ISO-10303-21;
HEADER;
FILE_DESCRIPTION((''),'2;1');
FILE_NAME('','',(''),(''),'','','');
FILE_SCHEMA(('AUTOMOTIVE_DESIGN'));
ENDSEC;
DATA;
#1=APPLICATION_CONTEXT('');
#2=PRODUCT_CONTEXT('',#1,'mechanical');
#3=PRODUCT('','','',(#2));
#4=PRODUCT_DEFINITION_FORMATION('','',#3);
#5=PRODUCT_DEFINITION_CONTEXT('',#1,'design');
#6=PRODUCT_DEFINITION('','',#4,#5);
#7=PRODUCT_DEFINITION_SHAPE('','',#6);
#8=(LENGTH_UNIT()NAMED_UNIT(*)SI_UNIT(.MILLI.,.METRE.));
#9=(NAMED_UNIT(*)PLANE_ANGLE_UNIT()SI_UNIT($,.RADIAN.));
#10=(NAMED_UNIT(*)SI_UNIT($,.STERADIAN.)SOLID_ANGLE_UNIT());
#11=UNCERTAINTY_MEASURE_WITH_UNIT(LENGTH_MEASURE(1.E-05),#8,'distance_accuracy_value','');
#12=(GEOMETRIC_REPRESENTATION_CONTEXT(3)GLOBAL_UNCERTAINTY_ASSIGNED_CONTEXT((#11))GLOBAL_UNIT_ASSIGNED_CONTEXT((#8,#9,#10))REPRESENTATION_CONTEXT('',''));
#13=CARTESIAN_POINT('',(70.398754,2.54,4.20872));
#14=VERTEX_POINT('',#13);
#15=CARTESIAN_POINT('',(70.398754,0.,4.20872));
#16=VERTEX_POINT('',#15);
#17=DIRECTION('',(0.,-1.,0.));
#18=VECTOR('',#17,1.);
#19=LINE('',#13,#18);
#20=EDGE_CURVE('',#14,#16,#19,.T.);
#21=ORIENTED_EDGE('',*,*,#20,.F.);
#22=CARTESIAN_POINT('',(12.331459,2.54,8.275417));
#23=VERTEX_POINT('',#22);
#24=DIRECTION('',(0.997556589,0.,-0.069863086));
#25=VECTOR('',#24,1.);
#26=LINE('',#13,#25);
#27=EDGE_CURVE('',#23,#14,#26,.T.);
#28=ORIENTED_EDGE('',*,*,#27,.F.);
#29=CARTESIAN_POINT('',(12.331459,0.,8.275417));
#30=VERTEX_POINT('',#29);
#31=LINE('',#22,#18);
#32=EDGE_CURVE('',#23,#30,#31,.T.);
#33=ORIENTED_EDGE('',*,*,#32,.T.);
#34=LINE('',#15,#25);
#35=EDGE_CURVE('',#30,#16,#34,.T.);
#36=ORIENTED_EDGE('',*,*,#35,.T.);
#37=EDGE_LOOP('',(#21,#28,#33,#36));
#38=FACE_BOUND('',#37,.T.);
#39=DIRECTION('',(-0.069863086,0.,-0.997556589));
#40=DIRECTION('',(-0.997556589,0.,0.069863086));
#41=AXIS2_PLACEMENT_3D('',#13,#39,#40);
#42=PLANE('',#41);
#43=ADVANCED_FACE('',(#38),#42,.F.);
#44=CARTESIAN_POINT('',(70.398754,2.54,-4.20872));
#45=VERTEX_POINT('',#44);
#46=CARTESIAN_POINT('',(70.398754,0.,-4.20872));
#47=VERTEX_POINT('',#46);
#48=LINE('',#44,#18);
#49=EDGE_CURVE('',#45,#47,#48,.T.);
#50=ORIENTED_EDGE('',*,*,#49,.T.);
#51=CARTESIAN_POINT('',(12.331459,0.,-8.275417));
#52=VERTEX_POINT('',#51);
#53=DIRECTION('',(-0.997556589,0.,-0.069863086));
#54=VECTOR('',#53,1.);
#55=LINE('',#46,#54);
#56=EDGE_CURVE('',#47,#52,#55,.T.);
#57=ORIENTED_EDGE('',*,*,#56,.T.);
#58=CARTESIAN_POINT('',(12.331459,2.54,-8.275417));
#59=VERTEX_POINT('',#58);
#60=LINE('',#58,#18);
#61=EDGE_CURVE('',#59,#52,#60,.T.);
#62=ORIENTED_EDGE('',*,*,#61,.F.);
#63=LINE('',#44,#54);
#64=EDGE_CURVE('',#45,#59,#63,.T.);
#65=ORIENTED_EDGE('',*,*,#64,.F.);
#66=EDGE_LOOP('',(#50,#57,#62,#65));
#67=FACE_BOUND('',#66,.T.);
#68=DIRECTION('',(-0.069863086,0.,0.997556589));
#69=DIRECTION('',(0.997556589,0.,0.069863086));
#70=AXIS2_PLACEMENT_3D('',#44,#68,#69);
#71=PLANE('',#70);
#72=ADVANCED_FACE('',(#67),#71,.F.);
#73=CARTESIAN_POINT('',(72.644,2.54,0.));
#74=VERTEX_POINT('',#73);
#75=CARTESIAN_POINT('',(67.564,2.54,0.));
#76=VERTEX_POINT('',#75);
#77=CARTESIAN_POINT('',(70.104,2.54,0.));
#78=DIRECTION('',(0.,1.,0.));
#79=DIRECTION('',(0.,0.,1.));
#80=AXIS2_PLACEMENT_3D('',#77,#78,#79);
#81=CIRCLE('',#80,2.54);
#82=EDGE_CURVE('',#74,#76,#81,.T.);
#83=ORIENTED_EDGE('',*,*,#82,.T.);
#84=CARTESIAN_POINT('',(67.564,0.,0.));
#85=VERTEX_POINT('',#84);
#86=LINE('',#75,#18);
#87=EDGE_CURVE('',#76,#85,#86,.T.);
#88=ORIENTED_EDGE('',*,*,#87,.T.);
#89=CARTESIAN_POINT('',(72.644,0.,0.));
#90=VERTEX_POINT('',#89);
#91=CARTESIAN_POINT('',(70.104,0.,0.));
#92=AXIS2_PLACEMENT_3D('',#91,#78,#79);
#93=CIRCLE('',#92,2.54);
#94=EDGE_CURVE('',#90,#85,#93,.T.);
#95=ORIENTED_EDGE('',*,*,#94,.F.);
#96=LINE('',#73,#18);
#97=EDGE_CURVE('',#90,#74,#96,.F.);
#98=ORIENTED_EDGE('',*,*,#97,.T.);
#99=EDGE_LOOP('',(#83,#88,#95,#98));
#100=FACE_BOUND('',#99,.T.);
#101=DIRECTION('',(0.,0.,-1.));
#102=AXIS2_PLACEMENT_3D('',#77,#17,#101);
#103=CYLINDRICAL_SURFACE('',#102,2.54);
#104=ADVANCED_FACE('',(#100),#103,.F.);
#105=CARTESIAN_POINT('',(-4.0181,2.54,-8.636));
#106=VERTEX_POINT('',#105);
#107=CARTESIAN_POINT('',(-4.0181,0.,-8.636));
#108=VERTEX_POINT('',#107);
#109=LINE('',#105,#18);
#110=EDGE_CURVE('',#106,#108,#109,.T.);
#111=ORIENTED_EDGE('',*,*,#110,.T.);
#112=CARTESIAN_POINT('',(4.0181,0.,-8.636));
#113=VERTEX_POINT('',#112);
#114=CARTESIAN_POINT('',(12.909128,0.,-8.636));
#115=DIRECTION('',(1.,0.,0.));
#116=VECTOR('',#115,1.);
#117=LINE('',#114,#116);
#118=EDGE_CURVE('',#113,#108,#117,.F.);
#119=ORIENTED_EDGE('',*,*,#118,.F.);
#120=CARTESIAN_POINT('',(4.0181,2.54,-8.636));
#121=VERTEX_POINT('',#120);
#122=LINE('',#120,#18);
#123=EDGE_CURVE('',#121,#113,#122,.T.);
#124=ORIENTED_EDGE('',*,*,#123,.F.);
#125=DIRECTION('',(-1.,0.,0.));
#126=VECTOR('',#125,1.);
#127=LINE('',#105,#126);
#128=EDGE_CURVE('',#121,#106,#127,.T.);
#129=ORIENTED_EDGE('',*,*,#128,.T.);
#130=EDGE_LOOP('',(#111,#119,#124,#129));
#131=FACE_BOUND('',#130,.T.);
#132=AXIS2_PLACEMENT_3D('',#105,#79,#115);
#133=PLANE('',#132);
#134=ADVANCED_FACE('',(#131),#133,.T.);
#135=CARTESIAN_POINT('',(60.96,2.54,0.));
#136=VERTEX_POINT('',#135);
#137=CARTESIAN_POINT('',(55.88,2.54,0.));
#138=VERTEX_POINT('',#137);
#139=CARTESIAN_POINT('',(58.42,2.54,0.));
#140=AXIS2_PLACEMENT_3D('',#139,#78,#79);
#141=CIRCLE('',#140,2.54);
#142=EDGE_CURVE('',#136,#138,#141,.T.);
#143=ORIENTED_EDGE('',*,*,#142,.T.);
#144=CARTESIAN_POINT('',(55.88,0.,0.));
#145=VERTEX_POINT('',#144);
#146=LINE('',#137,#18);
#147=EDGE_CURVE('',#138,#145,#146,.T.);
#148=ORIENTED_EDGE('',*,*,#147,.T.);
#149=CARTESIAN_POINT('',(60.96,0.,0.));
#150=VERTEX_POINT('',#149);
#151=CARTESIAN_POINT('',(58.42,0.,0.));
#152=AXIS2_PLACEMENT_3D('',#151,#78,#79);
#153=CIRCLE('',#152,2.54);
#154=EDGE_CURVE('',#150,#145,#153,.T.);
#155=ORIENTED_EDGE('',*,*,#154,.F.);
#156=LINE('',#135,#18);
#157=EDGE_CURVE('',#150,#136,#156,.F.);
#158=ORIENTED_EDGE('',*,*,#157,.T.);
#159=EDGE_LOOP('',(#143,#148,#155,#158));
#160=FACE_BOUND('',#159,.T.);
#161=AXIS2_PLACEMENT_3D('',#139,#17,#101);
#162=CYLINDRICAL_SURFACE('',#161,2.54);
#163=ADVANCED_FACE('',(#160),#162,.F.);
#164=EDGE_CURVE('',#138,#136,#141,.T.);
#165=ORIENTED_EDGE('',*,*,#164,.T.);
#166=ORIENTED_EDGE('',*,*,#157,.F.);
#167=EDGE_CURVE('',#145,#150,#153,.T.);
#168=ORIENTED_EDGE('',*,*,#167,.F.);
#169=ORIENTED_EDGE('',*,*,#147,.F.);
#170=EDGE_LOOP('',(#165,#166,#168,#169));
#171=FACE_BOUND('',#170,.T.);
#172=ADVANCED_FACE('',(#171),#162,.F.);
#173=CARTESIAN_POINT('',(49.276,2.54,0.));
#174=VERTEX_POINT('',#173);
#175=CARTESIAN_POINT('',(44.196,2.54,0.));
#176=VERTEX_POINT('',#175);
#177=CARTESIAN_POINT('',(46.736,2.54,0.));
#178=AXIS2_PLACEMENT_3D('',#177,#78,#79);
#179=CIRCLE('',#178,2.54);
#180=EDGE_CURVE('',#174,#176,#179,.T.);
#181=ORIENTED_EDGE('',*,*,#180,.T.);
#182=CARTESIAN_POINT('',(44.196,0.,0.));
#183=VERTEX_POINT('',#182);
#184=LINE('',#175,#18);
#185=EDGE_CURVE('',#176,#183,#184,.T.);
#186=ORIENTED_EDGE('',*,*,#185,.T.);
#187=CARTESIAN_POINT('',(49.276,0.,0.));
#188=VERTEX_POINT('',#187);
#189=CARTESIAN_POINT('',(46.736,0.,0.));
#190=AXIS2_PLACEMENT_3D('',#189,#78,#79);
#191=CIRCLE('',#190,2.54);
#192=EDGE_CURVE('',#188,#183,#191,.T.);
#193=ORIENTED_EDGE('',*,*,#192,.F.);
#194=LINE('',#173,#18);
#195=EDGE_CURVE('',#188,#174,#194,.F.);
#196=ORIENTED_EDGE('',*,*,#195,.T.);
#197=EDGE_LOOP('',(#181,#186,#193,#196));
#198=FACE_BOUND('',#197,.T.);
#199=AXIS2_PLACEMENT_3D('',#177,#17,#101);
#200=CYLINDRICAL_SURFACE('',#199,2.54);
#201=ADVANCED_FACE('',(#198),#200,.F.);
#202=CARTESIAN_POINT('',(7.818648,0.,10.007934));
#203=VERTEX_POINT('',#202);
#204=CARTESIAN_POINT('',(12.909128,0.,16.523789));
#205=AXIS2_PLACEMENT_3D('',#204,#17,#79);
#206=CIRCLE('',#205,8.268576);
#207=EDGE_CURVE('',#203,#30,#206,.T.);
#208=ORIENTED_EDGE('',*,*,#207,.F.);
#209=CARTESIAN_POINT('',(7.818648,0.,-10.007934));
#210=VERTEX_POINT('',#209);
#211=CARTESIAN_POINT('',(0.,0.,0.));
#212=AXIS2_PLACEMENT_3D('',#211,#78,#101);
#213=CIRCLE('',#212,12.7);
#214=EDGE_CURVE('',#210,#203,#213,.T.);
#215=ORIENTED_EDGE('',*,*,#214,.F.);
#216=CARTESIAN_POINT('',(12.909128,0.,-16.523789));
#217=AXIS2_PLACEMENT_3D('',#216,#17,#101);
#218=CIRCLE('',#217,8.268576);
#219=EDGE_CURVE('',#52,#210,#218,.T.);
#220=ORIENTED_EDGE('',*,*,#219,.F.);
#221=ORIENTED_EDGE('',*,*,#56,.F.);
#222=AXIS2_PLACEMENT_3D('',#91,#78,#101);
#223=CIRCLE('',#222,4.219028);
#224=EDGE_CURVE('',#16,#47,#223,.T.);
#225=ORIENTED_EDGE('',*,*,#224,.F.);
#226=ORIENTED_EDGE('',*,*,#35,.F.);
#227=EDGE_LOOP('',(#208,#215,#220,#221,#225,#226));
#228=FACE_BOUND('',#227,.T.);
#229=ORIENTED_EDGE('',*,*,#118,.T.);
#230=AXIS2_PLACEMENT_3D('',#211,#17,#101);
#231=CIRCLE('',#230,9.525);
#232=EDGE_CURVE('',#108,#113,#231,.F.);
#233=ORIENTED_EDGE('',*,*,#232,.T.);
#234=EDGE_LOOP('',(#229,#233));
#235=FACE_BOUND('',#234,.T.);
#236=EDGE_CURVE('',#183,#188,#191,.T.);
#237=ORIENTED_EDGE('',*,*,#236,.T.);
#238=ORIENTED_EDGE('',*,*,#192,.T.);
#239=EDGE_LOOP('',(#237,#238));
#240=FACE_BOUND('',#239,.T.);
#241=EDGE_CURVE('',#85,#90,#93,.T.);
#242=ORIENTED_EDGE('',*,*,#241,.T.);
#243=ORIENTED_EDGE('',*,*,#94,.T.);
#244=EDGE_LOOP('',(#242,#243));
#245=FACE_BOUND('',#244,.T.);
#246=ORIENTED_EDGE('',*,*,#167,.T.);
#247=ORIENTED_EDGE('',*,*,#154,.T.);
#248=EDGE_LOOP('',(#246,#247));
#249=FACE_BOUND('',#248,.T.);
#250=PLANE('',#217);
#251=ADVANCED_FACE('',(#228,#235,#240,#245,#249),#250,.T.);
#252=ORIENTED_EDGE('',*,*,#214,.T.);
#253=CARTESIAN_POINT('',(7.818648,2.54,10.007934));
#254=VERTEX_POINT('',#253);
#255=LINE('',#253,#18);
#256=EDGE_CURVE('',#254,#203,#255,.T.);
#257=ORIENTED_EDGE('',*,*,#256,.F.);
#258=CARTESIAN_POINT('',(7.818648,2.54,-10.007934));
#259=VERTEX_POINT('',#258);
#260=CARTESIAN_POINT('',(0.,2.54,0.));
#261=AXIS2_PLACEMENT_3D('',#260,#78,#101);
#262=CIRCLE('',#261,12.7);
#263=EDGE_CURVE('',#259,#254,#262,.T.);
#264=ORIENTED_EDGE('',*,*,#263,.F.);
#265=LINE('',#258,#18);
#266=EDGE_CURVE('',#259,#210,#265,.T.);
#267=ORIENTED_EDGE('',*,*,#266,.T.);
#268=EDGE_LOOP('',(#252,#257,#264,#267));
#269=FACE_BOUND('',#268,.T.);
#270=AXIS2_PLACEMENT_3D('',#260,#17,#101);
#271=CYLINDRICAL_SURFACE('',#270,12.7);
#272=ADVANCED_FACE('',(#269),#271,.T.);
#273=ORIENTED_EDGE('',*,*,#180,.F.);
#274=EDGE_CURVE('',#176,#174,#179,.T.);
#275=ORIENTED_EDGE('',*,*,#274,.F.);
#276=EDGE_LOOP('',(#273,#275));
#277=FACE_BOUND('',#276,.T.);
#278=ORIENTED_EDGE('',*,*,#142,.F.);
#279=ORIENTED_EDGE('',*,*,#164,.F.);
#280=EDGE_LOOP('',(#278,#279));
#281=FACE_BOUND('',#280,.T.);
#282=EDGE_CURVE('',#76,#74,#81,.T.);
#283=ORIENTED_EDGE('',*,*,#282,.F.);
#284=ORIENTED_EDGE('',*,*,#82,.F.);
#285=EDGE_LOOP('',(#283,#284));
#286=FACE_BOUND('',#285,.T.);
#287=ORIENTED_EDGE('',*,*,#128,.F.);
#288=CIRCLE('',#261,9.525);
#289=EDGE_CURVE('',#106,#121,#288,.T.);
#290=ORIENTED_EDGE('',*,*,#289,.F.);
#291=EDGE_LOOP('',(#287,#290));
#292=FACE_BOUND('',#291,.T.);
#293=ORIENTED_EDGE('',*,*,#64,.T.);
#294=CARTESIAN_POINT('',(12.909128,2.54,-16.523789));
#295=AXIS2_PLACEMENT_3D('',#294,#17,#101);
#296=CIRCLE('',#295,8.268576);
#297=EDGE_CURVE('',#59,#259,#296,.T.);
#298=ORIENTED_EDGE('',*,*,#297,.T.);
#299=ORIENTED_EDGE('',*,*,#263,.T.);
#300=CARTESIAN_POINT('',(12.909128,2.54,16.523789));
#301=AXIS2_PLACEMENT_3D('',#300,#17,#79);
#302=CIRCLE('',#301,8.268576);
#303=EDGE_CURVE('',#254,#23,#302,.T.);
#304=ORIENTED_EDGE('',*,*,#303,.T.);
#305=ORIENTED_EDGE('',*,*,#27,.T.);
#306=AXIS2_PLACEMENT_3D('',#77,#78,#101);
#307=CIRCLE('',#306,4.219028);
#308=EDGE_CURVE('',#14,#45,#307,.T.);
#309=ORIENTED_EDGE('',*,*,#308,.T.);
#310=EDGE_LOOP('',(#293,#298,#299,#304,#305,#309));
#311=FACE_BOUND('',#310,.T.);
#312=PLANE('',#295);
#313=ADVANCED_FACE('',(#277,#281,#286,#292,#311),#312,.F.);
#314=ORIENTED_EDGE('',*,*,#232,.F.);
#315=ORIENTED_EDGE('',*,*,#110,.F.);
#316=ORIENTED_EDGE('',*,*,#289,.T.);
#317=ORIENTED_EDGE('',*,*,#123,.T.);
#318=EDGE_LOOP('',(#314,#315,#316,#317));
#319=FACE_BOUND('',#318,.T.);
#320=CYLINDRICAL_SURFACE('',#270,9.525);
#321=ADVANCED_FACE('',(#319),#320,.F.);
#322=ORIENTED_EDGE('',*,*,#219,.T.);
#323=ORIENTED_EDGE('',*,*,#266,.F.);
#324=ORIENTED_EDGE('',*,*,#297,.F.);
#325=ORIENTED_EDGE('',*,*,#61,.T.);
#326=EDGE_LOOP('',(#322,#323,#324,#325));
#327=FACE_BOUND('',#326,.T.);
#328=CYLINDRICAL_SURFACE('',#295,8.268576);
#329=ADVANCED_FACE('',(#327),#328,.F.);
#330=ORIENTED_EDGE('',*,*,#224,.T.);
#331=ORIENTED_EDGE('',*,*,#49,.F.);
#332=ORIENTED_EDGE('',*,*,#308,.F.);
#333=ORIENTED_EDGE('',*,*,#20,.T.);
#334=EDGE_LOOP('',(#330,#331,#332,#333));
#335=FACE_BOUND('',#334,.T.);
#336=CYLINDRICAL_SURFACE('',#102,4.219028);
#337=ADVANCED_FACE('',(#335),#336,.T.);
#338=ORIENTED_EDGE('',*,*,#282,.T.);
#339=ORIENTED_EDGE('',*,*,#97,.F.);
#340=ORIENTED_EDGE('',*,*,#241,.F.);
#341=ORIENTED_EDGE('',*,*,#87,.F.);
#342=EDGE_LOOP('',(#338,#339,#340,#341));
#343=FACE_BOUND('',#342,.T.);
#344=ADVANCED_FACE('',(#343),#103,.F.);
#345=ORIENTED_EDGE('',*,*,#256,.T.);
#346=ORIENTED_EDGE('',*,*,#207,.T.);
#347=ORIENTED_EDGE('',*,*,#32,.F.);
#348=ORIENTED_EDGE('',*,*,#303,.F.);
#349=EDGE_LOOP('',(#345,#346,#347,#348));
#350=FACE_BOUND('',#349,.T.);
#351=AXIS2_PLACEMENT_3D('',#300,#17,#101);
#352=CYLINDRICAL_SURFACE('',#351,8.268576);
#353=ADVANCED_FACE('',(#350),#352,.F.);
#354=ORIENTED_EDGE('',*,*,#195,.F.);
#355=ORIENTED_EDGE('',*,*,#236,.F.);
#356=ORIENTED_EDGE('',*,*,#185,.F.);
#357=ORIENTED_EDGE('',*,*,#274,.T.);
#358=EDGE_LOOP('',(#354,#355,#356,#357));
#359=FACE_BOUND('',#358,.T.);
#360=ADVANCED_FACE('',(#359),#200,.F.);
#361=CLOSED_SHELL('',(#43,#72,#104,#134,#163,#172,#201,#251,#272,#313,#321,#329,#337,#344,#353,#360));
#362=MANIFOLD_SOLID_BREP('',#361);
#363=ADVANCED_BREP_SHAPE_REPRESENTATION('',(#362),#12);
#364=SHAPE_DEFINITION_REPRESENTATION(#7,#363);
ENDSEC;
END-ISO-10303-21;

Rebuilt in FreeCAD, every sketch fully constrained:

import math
import FreeCAD as App
import Part
import Sketcher

V = App.Vector
Q = App.Units.Quantity

doc = App.newDocument("Part")
body = doc.addObject("PartDesign::Body", "Body")

# Sketch on XZ plane
sketch1 = body.newObject("Sketcher::SketchObject", "Sketch")
sketch1.AttachmentSupport = (doc.getObject("XZ_Plane"), [""])
sketch1.MapMode = "FlatFace"
sketch1.addGeometry([
    Part.LineSegment(V(70.4, -4.2, 0), V(12.3, -8.3, 0)),  # 0
    Part.ArcOfCircle(Part.Circle(V(12.9, -16.5, 0), V(0, 0, 1), 8.3), math.radians(94), math.radians(128)),  # 1
    Part.ArcOfCircle(Part.Circle(V(0, 0, 0), V(0, 0, 1), 12.7), math.radians(52), math.radians(308)),  # 2
    Part.ArcOfCircle(Part.Circle(V(12.9, 16.5, 0), V(0, 0, 1), 8.3), math.radians(-128), math.radians(-94)),  # 3
    Part.LineSegment(V(12.3, 8.3, 0), V(70.4, 4.2, 0)),  # 4
    Part.ArcOfCircle(Part.Circle(V(70.1, 0, 0), V(0, 0, 1), 4.2), math.radians(-86), math.radians(86)),  # 5
    Part.Circle(V(46.7, 0, 0), V(0, 0, 1), 2.5),  # 6
    Part.Circle(V(58.4, 0, 0), V(0, 0, 1), 2.5),  # 7
    Part.Circle(V(70.1, 0, 0), V(0, 0, 1), 2.5),  # 8
], False)
sketch1.addConstraint([
    Sketcher.Constraint("Tangent", 0, 2, 1, 1),
    Sketcher.Constraint("Tangent", 1, 2, 2, 2),
    Sketcher.Constraint("Tangent", 2, 1, 3, 1),
    Sketcher.Constraint("Tangent", 3, 2, 4, 1),
    Sketcher.Constraint("Tangent", 4, 2, 5, 2),
    Sketcher.Constraint("Tangent", 5, 1, 0, 1),
    Sketcher.Constraint("Coincident", 2, 3, -1, 1),
    Sketcher.Constraint("Coincident", 8, 3, 5, 3),
    Sketcher.Constraint("Equal", 1, 3),
    Sketcher.Constraint("Equal", 6, 7),
    Sketcher.Constraint("Equal", 7, 8),
    Sketcher.Constraint("Symmetric", 0, 2, 3, 2, -1),
    Sketcher.Constraint("PointOnObject", 6, 3, -1),
    Sketcher.Constraint("PointOnObject", 7, 3, -1),
    Sketcher.Constraint("Diameter", 6, Q("0.2 in")),
    Sketcher.Constraint("Radius", 2, Q("0.5 in")),
    Sketcher.Constraint("DistanceX", -1, 1, 7, 3, Q("2.3 in")),
    Sketcher.Constraint("DistanceX", -1, 1, 5, 3, Q("2.76 in")),
    Sketcher.Constraint("DistanceX", -1, 1, 6, 3, Q("1.84 in")),
    Sketcher.Constraint("Radius", 5, 4.219028),
    Sketcher.Constraint("Radius", 1, 8.268576),
    Sketcher.Constraint("DistanceY", 1, 3, -1, 1, 16.523789),
])
pad1 = body.newObject("PartDesign::Pad", "Pad")
pad1.Profile = sketch1
pad1.Length = Q("0.1 in")
pad1.Reversed = True

# Sketch on XZ plane
sketch2 = body.newObject("Sketcher::SketchObject", "Sketch001")
sketch2.AttachmentSupport = (doc.getObject("XZ_Plane"), [""])
sketch2.MapMode = "FlatFace"
sketch2.addGeometry([
    Part.LineSegment(V(4, -9, 0), V(-4, -9, 0)),
    Part.ArcOfCircle(Part.Circle(V(0, 0, 0), V(0, 0, 1), 10), math.radians(-65), math.radians(245)),
], False)
sketch2.addConstraint([
    Sketcher.Constraint("Coincident", 0, 1, 1, 1),
    Sketcher.Constraint("Coincident", 1, 2, 0, 2),
    Sketcher.Constraint("Horizontal", 0),
    Sketcher.Constraint("Coincident", 1, 3, -1, 1),
    Sketcher.Constraint("Radius", 1, Q("0.375 in")),
    Sketcher.Constraint("DistanceY", 0, 1, -1, 1, Q("0.34 in")),
])
pocket1 = body.newObject("PartDesign::Pocket", "Pocket")
pocket1.Profile = sketch2
pocket1.Type = "ThroughAll"
pocket1.Midplane = True

doc.recompute()
